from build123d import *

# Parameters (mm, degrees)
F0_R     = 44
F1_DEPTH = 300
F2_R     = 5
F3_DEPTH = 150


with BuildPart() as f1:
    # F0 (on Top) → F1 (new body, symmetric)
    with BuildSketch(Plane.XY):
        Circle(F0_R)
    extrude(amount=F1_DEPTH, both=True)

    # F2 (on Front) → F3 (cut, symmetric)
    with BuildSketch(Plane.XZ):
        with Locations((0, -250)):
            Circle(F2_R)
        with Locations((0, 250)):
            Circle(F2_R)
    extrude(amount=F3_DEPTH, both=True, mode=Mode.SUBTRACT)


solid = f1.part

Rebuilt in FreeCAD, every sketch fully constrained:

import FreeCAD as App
import Part
import Sketcher
from FreeCAD import Vector
Q = App.Units.Quantity

doc = App.newDocument("Part")
params = doc.addObject("Spreadsheet::Sheet", "Params")
for row, (alias, value) in enumerate([
    ("sketch1_diameter", "88 mm"),
    ("pad1_length", "600 mm"),
    ("sketch2_diameter", "10 mm"),
    ("pocket1_length", "300 mm"),
], start=1):
    params.set(f"A{row}", alias)
    params.set(f"B{row}", "=" + value)
    params.setAlias(f"B{row}", alias)

body = doc.addObject("PartDesign::Body", "Body")

# Sketch on XY plane
sketch1 = doc.addObject("Sketcher::SketchObject", "Sketch")
body.addObject(sketch1)
sketch1.AttachmentSupport = (doc.XY_Plane, [""])
sketch1.MapMode = "FlatFace"
sketch1.addGeometry(Part.Circle(Vector(0, 0, 0), Vector(0, 0, 1), 44), False)
sketch1.addConstraint([
    Sketcher.Constraint("Coincident", 0, 3, -1, 1),
    Sketcher.Constraint("Diameter", 0, Q("88 mm")),
])
sketch1.setExpression("Constraints[1]", "Params.sketch1_diameter")
pad1 = doc.addObject("PartDesign::Pad", "Pad")
body.addObject(pad1)
pad1.Profile = sketch1
pad1.setExpression("Length", "Params.pad1_length")
pad1.Midplane = True

# Sketch on XZ plane
sketch2 = doc.addObject("Sketcher::SketchObject", "Sketch001")
body.addObject(sketch2)
sketch2.AttachmentSupport = (doc.XZ_Plane, [""])
sketch2.MapMode = "FlatFace"
sketch2.addGeometry([
    Part.Circle(Vector(0, -250, 0), Vector(0, 0, 1), 5),
    Part.Circle(Vector(0, 250, 0), Vector(0, 0, 1), 5),
], False)
sketch2.addConstraint([
    Sketcher.Constraint("Equal", 0, 1),
    Sketcher.Constraint("Symmetric", 0, 3, 1, 3, -1, 1),
    Sketcher.Constraint("PointOnObject", 0, 3, -2),
    Sketcher.Constraint("Diameter", 0, Q("10 mm")),
    Sketcher.Constraint("DistanceY", 0, 3, -1, 1, Q("250 mm")),
])
sketch2.setExpression("Constraints[3]", "Params.sketch2_diameter")
pocket1 = doc.addObject("PartDesign::Pocket", "Pocket")
body.addObject(pocket1)
pocket1.Profile = sketch2
pocket1.setExpression("Length", "Params.pocket1_length")
pocket1.Midplane = True

doc.recompute()
